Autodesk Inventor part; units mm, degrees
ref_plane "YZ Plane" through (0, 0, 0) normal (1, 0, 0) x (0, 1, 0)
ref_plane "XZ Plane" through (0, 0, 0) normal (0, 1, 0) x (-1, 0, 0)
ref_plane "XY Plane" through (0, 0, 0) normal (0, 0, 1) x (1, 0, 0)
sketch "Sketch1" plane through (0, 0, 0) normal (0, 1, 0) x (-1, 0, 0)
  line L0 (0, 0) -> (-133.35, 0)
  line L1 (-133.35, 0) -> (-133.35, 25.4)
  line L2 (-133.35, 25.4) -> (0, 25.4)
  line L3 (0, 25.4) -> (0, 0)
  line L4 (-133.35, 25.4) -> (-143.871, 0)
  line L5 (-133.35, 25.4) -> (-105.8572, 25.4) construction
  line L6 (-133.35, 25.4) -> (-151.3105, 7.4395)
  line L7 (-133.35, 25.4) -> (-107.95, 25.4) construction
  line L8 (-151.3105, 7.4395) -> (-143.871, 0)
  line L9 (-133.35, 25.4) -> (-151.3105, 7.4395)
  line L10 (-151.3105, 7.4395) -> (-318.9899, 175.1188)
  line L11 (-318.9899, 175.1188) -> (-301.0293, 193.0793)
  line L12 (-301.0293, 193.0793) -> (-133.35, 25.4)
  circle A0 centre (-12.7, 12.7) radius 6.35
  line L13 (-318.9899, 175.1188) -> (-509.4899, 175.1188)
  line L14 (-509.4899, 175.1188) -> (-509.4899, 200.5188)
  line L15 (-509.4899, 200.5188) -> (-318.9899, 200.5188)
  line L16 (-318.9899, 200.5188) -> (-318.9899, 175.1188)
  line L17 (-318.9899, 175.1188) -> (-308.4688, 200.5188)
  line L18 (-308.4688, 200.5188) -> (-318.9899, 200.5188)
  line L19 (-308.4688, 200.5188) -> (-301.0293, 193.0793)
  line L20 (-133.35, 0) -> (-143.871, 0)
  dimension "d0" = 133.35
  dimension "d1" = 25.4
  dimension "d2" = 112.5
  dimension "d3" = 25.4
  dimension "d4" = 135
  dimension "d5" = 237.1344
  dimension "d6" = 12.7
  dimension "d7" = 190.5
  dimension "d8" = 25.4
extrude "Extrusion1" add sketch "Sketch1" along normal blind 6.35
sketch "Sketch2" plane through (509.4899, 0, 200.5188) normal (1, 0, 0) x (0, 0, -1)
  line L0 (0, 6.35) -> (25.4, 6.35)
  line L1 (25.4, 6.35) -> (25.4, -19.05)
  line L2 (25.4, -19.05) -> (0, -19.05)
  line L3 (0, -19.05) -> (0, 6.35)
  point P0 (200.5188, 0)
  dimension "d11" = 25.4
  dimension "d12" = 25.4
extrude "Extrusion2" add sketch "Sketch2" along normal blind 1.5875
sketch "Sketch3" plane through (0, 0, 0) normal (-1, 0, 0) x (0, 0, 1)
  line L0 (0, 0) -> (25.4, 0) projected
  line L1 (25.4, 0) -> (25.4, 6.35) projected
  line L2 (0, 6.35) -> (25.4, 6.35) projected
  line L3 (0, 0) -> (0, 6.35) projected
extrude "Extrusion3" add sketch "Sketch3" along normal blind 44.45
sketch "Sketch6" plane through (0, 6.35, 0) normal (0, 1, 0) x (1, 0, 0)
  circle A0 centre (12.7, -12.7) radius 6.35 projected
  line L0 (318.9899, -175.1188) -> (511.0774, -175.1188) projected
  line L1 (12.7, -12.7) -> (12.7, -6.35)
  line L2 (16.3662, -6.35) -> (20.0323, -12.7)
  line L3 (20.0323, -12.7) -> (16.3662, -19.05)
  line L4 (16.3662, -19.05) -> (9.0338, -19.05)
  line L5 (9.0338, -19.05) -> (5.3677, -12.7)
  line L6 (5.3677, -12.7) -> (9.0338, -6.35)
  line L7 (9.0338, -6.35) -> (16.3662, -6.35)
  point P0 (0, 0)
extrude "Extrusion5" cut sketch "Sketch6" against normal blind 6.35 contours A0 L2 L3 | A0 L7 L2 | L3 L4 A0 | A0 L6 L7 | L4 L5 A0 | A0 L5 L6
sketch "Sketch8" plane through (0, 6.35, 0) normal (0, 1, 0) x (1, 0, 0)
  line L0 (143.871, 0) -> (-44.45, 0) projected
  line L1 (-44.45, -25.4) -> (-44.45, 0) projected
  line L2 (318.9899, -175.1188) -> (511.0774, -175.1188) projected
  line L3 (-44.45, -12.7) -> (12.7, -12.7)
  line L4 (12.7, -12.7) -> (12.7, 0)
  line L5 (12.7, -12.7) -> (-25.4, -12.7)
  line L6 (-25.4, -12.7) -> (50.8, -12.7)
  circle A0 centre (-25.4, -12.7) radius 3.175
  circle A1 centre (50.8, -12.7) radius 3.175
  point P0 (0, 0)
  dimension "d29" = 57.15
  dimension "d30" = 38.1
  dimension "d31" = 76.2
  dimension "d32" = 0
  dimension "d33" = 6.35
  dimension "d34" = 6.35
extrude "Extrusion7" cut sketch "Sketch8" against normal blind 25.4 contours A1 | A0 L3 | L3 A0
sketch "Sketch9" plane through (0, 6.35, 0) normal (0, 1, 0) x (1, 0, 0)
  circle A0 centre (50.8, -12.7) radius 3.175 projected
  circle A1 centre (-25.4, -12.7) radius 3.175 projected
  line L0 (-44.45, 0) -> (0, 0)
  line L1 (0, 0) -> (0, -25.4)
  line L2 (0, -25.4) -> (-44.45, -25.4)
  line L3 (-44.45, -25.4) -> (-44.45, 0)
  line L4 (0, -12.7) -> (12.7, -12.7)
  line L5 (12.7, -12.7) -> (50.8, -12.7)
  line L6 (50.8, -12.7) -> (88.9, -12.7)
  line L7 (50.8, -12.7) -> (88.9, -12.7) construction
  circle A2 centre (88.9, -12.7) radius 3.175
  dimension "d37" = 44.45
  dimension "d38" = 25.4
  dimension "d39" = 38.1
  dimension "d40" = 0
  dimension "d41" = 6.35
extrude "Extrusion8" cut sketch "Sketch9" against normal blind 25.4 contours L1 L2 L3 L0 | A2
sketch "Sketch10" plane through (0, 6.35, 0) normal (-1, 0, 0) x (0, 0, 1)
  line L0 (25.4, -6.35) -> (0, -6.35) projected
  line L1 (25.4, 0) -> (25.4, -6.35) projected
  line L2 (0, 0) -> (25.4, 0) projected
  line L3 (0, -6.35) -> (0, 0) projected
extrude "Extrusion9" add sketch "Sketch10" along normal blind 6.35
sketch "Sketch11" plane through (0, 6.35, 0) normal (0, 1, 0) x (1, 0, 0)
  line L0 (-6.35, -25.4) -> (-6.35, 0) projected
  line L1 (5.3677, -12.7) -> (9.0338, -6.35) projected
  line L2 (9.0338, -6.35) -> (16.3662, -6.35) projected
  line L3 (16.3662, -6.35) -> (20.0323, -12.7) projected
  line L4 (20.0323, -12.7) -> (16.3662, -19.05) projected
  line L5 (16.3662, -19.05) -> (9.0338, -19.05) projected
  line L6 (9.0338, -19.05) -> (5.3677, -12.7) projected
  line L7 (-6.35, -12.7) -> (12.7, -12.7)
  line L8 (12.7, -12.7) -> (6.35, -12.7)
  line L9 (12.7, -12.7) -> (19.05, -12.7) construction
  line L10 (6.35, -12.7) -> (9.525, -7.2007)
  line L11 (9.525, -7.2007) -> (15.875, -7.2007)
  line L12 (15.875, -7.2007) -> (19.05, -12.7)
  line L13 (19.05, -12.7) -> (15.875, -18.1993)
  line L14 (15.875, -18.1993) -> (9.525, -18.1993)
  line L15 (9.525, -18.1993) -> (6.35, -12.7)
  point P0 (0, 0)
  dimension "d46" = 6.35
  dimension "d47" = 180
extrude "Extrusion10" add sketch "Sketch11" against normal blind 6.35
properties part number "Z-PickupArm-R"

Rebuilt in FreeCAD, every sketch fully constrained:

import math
import FreeCAD as App
import Part
import Sketcher
from FreeCAD import Vector
Q = App.Units.Quantity


def add_polygon(sketch, points):
    """Adds a closed chain of lines whose ends are joined by coincident constraints."""
    first, n = sketch.GeometryCount, len(points)
    for a, b in zip(points, points[1:] + points[:1]):
        sketch.addGeometry(Part.LineSegment(App.Vector(*a, 0), App.Vector(*b, 0)), False)
    for i in range(n):
        sketch.addConstraint(Sketcher.Constraint("Coincident", first + i, 2, first + (i + 1) % n, 1))

doc = App.newDocument("Part")
body = doc.addObject("PartDesign::Body", "Body")

# Sketch on XZ plane
sketch1 = doc.addObject("Sketcher::SketchObject", "Sketch")
body.addObject(sketch1)
sketch1.AttachmentSupport = (doc.XZ_Plane, [""])
sketch1.MapMode = "FlatFace"
add_polygon(sketch1, [(0, 0), (0, 25.4), (133.35, 25.4), (308.4688, 200.5188), (509.4899, 200.5188), (509.4899, 175.1188), (318.9899, 175.1188), (151.3105, 7.4395), (143.871, 0)])  # lines 0-8
sketch1.addGeometry(Part.Circle(Vector(12.7, 12.7, 0), Vector(0, 0, 1), 6.35), False)  # 9
sketch1.addConstraint([
    Sketcher.Constraint("Vertical", 0),
    Sketcher.Constraint("Horizontal", 1),
    Sketcher.Constraint("Horizontal", 3),
    Sketcher.Constraint("Vertical", 4),
    Sketcher.Constraint("Horizontal", 5),
    Sketcher.Constraint("Horizontal", 8),
    Sketcher.Constraint("Coincident", 8, 2, -1, 1),
    Sketcher.Constraint("Parallel", 2, 6),
    Sketcher.Constraint("Parallel", 6, 7),
    Sketcher.Constraint("Equal", 0, 4),
    Sketcher.Constraint("Diameter", 9, Q("0.5 in")),
    Sketcher.Constraint("DistanceY", 0, 1, 0, 2, Q("1 in")),
    Sketcher.Constraint("DistanceX", 5, 2, 5, 1, Q("7.5 in")),
    Sketcher.Constraint("Angle", 6, Q("-135 deg")),
    Sketcher.Constraint("DistanceX", 1, 1, 1, 2, Q("5.25 in")),
    Sketcher.Constraint("DistanceX", -1, 1, 9, 3, Q("0.5 in")),
    Sketcher.Constraint("DistanceY", -1, 1, 9, 3, Q("0.5 in")),
    Sketcher.Constraint("Distance", 6, Q("9.336 in")),
    Sketcher.Constraint("Distance", 2, Q("9.7502 in")),
    Sketcher.Constraint("DistanceX", 3, 1, 3, 2, 201.021),
])
pad1 = doc.addObject("PartDesign::Pad", "Pad")
body.addObject(pad1)
pad1.Profile = sketch1
pad1.Length = Q("0.25 in")
pad1.Reversed = True

# Sketch on YZ plane
sketch2 = doc.addObject("Sketcher::SketchObject", "Sketch001")
body.addObject(sketch2)
sketch2.AttachmentSupport = (doc.YZ_Plane, [""])
sketch2.MapMode = "FlatFace"
sketch2.AttachmentOffset = App.Placement(Vector(0, 0, 509.4899), App.Rotation())
add_polygon(sketch2, [(6.35, 175.1188), (6.35, 200.5188), (-19.05, 200.5188), (-19.05, 175.1188)])  # lines 0-3
sketch2.addConstraint([
    Sketcher.Constraint("Vertical", 0),
    Sketcher.Constraint("Horizontal", 1),
    Sketcher.Constraint("Vertical", 2),
    Sketcher.Constraint("Horizontal", 3),
    Sketcher.Constraint("Equal", 3, 0),
    Sketcher.Constraint("DistanceX", 1, 2, 1, 1, Q("1 in")),
    Sketcher.Constraint("DistanceX", -1, 1, 0, 2, Q("0.25 in")),
    Sketcher.Constraint("DistanceY", -1, 1, 0, 2, 200.5188),
])
pad2 = doc.addObject("PartDesign::Pad", "Pad001")
body.addObject(pad2)
pad2.Profile = sketch2
pad2.Length = Q("0.0625 in")

# Sketch on YZ plane
sketch3 = doc.addObject("Sketcher::SketchObject", "Sketch002")
body.addObject(sketch3)
sketch3.AttachmentSupport = (doc.YZ_Plane, [""])
sketch3.MapMode = "FlatFace"
add_polygon(sketch3, [(6.35, 0), (0, 0), (0, 25.4), (6.35, 25.4)])  # lines 0-3
sketch3.addConstraint([
    Sketcher.Constraint("Horizontal", 0),
    Sketcher.Constraint("Vertical", 1),
    Sketcher.Constraint("Horizontal", 2),
    Sketcher.Constraint("Vertical", 3),
    Sketcher.Constraint("Coincident", 0, 2, -1, 1),
    Sketcher.Constraint("DistanceY", 1, 1, 1, 2, Q("1 in")),
    Sketcher.Constraint("DistanceX", 0, 2, 0, 1, Q("0.25 in")),
])
pad3 = doc.addObject("PartDesign::Pad", "Pad002")
body.addObject(pad3)
pad3.Profile = sketch3
pad3.Length = Q("1.75 in")
pad3.Reversed = True

# Sketch on XZ plane
sketch4 = doc.addObject("Sketcher::SketchObject", "Sketch003")
body.addObject(sketch4)
sketch4.AttachmentSupport = (doc.XZ_Plane, [""])
sketch4.MapMode = "FlatFace"
sketch4.AttachmentOffset = App.Placement(Vector(0, 0, -0.25 * 25.4), App.Rotation())
sketch4.addGeometry([
    Part.ArcOfCircle(Part.Circle(Vector(12.7, 12.7, 0), Vector(0, 0, 1), 6.35), math.radians(-29.999498), math.radians(29.999498)),  # 0
    Part.LineSegment(Vector(18.199281, 15.874947, 0), Vector(20.0323, 12.7, 0)),  # 1
    Part.LineSegment(Vector(20.0323, 12.7, 0), Vector(18.199281, 9.525053, 0)),  # 2
    Part.ArcOfCircle(Part.Circle(Vector(12.7, 12.7, 0), Vector(0, 0, 1), 6.35), math.radians(-90), math.radians(-29.999498)),  # 3
    Part.LineSegment(Vector(18.199281, 9.525053, 0), Vector(16.3662, 6.35, 0)),  # 4
    Part.LineSegment(Vector(16.3662, 6.35, 0), Vector(12.7, 6.35, 0)),  # 5
    Part.LineSegment(Vector(16.3662, 19.05, 0), Vector(18.199281, 15.874947, 0)),  # 6
    Part.ArcOfCircle(Part.Circle(Vector(12.7, 12.7, 0), Vector(0, 0, 1), 6.35), math.radians(29.999498), math.radians(90)),  # 7
    Part.LineSegment(Vector(12.7, 19.05, 0), Vector(16.3662, 19.05, 0)),  # 8
    Part.ArcOfCircle(Part.Circle(Vector(12.7, 12.7, 0), Vector(0, 0, 1), 6.35), math.radians(-150.000502), math.radians(-90)),  # 9
    Part.LineSegment(Vector(12.7, 6.35, 0), Vector(9.0338, 6.35, 0)),  # 10
    Part.LineSegment(Vector(9.0338, 6.35, 0), Vector(7.200719, 9.525053, 0)),  # 11
    Part.LineSegment(Vector(9.0338, 19.05, 0), Vector(12.7, 19.05, 0)),  # 12
    Part.ArcOfCircle(Part.Circle(Vector(12.7, 12.7, 0), Vector(0, 0, 1), 6.35), math.radians(90), math.radians(150.000502)),  # 13
    Part.LineSegment(Vector(7.200719, 15.874947, 0), Vector(9.0338, 19.05, 0)),  # 14
    Part.ArcOfCircle(Part.Circle(Vector(12.7, 12.7, 0), Vector(0, 0, 1), 6.35), math.radians(150.000502), math.radians(209.999498)),  # 15
    Part.LineSegment(Vector(7.200719, 9.525053, 0), Vector(5.3677, 12.7, 0)),  # 16
    Part.LineSegment(Vector(5.3677, 12.7, 0), Vector(7.200719, 15.874947, 0)),  # 17
], False)
sketch4.addConstraint([
    Sketcher.Constraint("Tangent", 0, 2, 1, 1),
    Sketcher.Constraint("Coincident", 1, 2, 2, 1),
    Sketcher.Constraint("Tangent", 2, 2, 0, 1),
    Sketcher.Constraint("Tangent", 3, 2, 4, 1),
    Sketcher.Constraint("Coincident", 4, 2, 5, 1),
    Sketcher.Constraint("Tangent", 5, 2, 3, 1),
    Sketcher.Constraint("Tangent", 6, 2, 7, 1),
    Sketcher.Constraint("Tangent", 7, 2, 8, 1),
    Sketcher.Constraint("Coincident", 8, 2, 6, 1),
    Sketcher.Constraint("Tangent", 9, 2, 10, 1),
    Sketcher.Constraint("Coincident", 10, 2, 11, 1),
    Sketcher.Constraint("Tangent", 11, 2, 9, 1),
    Sketcher.Constraint("Tangent", 12, 2, 13, 1),
    Sketcher.Constraint("Tangent", 13, 2, 14, 1),
    Sketcher.Constraint("Coincident", 14, 2, 12, 1),
    Sketcher.Constraint("Tangent", 15, 2, 16, 1),
    Sketcher.Constraint("Coincident", 16, 2, 17, 1),
    Sketcher.Constraint("Tangent", 17, 2, 15, 1),
    Sketcher.Constraint("Horizontal", 5),
    Sketcher.Constraint("Horizontal", 8),
    Sketcher.Constraint("Horizontal", 10),
    Sketcher.Constraint("Horizontal", 12),
    Sketcher.Constraint("Coincident", 3, 3, 0, 3),
    Sketcher.Constraint("Coincident", 7, 3, 0, 3),
    Sketcher.Constraint("Coincident", 9, 3, 0, 3),
    Sketcher.Constraint("Coincident", 13, 3, 0, 3),
    Sketcher.Constraint("Coincident", 15, 3, 0, 3),
    Sketcher.Constraint("Coincident", 3, 2, 2, 2),
    Sketcher.Constraint("Coincident", 6, 2, 0, 2),
    Sketcher.Constraint("Coincident", 15, 2, 11, 2),
    Sketcher.Constraint("Coincident", 17, 2, 13, 2),
    Sketcher.Constraint("Equal", 7, 9),
    Sketcher.Constraint("Parallel", 6, 11),
    Sketcher.Constraint("Parallel", 4, 14),
    Sketcher.Constraint("Horizontal", 15, 3, 1, 2),
    Sketcher.Constraint("Equal", 2, 4),
    Sketcher.Constraint("Radius", 0, Q("0.25 in")),
    Sketcher.Constraint("DistanceX", -1, 1, 0, 3, Q("0.5 in")),
    Sketcher.Constraint("DistanceY", -1, 1, 0, 3, Q("0.5 in")),
])
pocket1 = doc.addObject("PartDesign::Pocket", "Pocket")
body.addObject(pocket1)
pocket1.Profile = sketch4
pocket1.Length = Q("0.25 in")
pocket1.Reversed = True

# Sketch on XZ plane
sketch5 = doc.addObject("Sketcher::SketchObject", "Sketch004")
body.addObject(sketch5)
sketch5.AttachmentSupport = (doc.XZ_Plane, [""])
sketch5.MapMode = "FlatFace"
sketch5.AttachmentOffset = App.Placement(Vector(0, 0, -0.25 * 25.4), App.Rotation())
sketch5.addGeometry([
    Part.Circle(Vector(50.8, 12.7, 0), Vector(0, 0, 1), 3.175),
    Part.Circle(Vector(-25.4, 12.7, 0), Vector(0, 0, 1), 3.175),
], False)
sketch5.addConstraint([
    Sketcher.Constraint("Equal", 0, 1),
    Sketcher.Constraint("Horizontal", 0, 3, 1, 3),
    Sketcher.Constraint("Diameter", 0, Q("0.25 in")),
    Sketcher.Constraint("DistanceX", 1, 3, 0, 3, Q("3 in")),
    Sketcher.Constraint("DistanceX", -1, 1, 0, 3, Q("2 in")),
    Sketcher.Constraint("DistanceY", -1, 1, 0, 3, Q("0.5 in")),
])
pocket2 = doc.addObject("PartDesign::Pocket", "Pocket001")
body.addObject(pocket2)
pocket2.Profile = sketch5
pocket2.Length = Q("1 in")
pocket2.Reversed = True

# Sketch on XZ plane
sketch6 = doc.addObject("Sketcher::SketchObject", "Sketch005")
body.addObject(sketch6)
sketch6.AttachmentSupport = (doc.XZ_Plane, [""])
sketch6.MapMode = "FlatFace"
sketch6.AttachmentOffset = App.Placement(Vector(0, 0, -0.25 * 25.4), App.Rotation())
add_polygon(sketch6, [(0, 25.4), (0, 0), (-44.45, 0), (-44.45, 25.4)])  # lines 0-3
sketch6.addGeometry(Part.Circle(Vector(-25.4, 12.7, 0), Vector(0, 0, 1), 3.175), False)  # 4
sketch6.addGeometry(Part.Circle(Vector(88.9, 12.7, 0), Vector(0, 0, 1), 3.175), False)  # 5
sketch6.addConstraint([
    Sketcher.Constraint("Vertical", 0),
    Sketcher.Constraint("Horizontal", 1),
    Sketcher.Constraint("Vertical", 2),
    Sketcher.Constraint("Horizontal", 3),
    Sketcher.Constraint("Coincident", 0, 2, -1, 1),
    Sketcher.Constraint("Equal", 4, 5),
    Sketcher.Constraint("Horizontal", 4, 3, 5, 3),
    Sketcher.Constraint("Diameter", 4, Q("0.25 in")),
    Sketcher.Constraint("DistanceY", 0, 2, 0, 1, Q("1 in")),
    Sketcher.Constraint("DistanceX", 4, 3, -1, 1, Q("1 in")),
    Sketcher.Constraint("DistanceX", 1, 2, 1, 1, Q("1.75 in")),
    Sketcher.Constraint("DistanceY", -1, 1, 4, 3, Q("0.5 in")),
    Sketcher.Constraint("DistanceX", -1, 1, 5, 3, Q("3.5 in")),
])
pocket3 = doc.addObject("PartDesign::Pocket", "Pocket002")
body.addObject(pocket3)
pocket3.Profile = sketch6
pocket3.Length = Q("1 in")
pocket3.Reversed = True

# Sketch on YZ plane
sketch7 = doc.addObject("Sketcher::SketchObject", "Sketch006")
body.addObject(sketch7)
sketch7.AttachmentSupport = (doc.YZ_Plane, [""])
sketch7.MapMode = "FlatFace"
add_polygon(sketch7, [(0, 0), (0, 25.4), (6.35, 25.4), (6.35, 0)])  # lines 0-3
sketch7.addConstraint([
    Sketcher.Constraint("Vertical", 0),
    Sketcher.Constraint("Horizontal", 1),
    Sketcher.Constraint("Vertical", 2),
    Sketcher.Constraint("Horizontal", 3),
    Sketcher.Constraint("Coincident", 3, 2, -1, 1),
    Sketcher.Constraint("DistanceY", 0, 1, 0, 2, Q("1 in")),
    Sketcher.Constraint("DistanceX", 1, 1, 1, 2, Q("0.25 in")),
])
pad4 = doc.addObject("PartDesign::Pad", "Pad003")
body.addObject(pad4)
pad4.Profile = sketch7
pad4.Length = Q("0.25 in")
pad4.Reversed = True

# Sketch on XZ plane
sketch8 = doc.addObject("Sketcher::SketchObject", "Sketch007")
body.addObject(sketch8)
sketch8.AttachmentSupport = (doc.XZ_Plane, [""])
sketch8.MapMode = "FlatFace"
sketch8.AttachmentOffset = App.Placement(Vector(0, 0, -0.25 * 25.4), App.Rotation())
add_polygon(sketch8, [(9.0338, 6.35), (5.3677, 12.7), (9.0338, 19.05), (16.3662, 19.05), (20.0323, 12.7), (16.3662, 6.35)])  # lines 0-5
add_polygon(sketch8, [(9.525, 18.1993), (6.35, 12.7), (9.525, 7.2007), (15.875, 7.2007), (19.05, 12.7), (15.875, 18.1993)])  # lines 6-11
sketch8.addConstraint([
    Sketcher.Constraint("Horizontal", 2),
    Sketcher.Constraint("Horizontal", 5),
    Sketcher.Constraint("Horizontal", 8),
    Sketcher.Constraint("Horizontal", 11),
    Sketcher.Constraint("Parallel", 0, 3),
    Sketcher.Constraint("Parallel", 1, 4),
    Sketcher.Constraint("Parallel", 4, 6),
    Sketcher.Constraint("Parallel", 3, 7),
    Sketcher.Constraint("Parallel", 6, 9),
    Sketcher.Constraint("Parallel", 7, 10),
    Sketcher.Constraint("Horizontal", 0, 2, 3, 2),
    Sketcher.Constraint("Horizontal", 3, 2, 6, 2),
    Sketcher.Constraint("Horizontal", 6, 2, 9, 2),
    Sketcher.Constraint("Vertical", 2, 2, 4, 2),
    Sketcher.Constraint("Vertical", 1, 2, 5, 2),
    Sketcher.Constraint("Vertical", 8, 2, 10, 2),
    Sketcher.Constraint("DistanceX", 8, 1, 8, 2, Q("0.25 in")),
    Sketcher.Constraint("Distance", 6, Q("0.25 in")),
    Sketcher.Constraint("DistanceY", -1, 1, 4, 2, Q("0.25 in")),
    Sketcher.Constraint("DistanceX", -1, 1, 6, 2, Q("0.25 in")),
    Sketcher.Constraint("DistanceY", 0, 2, 1, 2, Q("0.25 in")),
    Sketcher.Constraint("Angle", 0, Q("119.9995 deg")),
    Sketcher.Constraint("DistanceX", 0, 2, 2, 2, Q("0.433 in")),
    Sketcher.Constraint("DistanceX", -1, 1, 0, 2, 5.3677),
])
pad5 = doc.addObject("PartDesign::Pad", "Pad004")
body.addObject(pad5)
pad5.Profile = sketch8
pad5.Length = Q("0.25 in")

doc.recompute()
